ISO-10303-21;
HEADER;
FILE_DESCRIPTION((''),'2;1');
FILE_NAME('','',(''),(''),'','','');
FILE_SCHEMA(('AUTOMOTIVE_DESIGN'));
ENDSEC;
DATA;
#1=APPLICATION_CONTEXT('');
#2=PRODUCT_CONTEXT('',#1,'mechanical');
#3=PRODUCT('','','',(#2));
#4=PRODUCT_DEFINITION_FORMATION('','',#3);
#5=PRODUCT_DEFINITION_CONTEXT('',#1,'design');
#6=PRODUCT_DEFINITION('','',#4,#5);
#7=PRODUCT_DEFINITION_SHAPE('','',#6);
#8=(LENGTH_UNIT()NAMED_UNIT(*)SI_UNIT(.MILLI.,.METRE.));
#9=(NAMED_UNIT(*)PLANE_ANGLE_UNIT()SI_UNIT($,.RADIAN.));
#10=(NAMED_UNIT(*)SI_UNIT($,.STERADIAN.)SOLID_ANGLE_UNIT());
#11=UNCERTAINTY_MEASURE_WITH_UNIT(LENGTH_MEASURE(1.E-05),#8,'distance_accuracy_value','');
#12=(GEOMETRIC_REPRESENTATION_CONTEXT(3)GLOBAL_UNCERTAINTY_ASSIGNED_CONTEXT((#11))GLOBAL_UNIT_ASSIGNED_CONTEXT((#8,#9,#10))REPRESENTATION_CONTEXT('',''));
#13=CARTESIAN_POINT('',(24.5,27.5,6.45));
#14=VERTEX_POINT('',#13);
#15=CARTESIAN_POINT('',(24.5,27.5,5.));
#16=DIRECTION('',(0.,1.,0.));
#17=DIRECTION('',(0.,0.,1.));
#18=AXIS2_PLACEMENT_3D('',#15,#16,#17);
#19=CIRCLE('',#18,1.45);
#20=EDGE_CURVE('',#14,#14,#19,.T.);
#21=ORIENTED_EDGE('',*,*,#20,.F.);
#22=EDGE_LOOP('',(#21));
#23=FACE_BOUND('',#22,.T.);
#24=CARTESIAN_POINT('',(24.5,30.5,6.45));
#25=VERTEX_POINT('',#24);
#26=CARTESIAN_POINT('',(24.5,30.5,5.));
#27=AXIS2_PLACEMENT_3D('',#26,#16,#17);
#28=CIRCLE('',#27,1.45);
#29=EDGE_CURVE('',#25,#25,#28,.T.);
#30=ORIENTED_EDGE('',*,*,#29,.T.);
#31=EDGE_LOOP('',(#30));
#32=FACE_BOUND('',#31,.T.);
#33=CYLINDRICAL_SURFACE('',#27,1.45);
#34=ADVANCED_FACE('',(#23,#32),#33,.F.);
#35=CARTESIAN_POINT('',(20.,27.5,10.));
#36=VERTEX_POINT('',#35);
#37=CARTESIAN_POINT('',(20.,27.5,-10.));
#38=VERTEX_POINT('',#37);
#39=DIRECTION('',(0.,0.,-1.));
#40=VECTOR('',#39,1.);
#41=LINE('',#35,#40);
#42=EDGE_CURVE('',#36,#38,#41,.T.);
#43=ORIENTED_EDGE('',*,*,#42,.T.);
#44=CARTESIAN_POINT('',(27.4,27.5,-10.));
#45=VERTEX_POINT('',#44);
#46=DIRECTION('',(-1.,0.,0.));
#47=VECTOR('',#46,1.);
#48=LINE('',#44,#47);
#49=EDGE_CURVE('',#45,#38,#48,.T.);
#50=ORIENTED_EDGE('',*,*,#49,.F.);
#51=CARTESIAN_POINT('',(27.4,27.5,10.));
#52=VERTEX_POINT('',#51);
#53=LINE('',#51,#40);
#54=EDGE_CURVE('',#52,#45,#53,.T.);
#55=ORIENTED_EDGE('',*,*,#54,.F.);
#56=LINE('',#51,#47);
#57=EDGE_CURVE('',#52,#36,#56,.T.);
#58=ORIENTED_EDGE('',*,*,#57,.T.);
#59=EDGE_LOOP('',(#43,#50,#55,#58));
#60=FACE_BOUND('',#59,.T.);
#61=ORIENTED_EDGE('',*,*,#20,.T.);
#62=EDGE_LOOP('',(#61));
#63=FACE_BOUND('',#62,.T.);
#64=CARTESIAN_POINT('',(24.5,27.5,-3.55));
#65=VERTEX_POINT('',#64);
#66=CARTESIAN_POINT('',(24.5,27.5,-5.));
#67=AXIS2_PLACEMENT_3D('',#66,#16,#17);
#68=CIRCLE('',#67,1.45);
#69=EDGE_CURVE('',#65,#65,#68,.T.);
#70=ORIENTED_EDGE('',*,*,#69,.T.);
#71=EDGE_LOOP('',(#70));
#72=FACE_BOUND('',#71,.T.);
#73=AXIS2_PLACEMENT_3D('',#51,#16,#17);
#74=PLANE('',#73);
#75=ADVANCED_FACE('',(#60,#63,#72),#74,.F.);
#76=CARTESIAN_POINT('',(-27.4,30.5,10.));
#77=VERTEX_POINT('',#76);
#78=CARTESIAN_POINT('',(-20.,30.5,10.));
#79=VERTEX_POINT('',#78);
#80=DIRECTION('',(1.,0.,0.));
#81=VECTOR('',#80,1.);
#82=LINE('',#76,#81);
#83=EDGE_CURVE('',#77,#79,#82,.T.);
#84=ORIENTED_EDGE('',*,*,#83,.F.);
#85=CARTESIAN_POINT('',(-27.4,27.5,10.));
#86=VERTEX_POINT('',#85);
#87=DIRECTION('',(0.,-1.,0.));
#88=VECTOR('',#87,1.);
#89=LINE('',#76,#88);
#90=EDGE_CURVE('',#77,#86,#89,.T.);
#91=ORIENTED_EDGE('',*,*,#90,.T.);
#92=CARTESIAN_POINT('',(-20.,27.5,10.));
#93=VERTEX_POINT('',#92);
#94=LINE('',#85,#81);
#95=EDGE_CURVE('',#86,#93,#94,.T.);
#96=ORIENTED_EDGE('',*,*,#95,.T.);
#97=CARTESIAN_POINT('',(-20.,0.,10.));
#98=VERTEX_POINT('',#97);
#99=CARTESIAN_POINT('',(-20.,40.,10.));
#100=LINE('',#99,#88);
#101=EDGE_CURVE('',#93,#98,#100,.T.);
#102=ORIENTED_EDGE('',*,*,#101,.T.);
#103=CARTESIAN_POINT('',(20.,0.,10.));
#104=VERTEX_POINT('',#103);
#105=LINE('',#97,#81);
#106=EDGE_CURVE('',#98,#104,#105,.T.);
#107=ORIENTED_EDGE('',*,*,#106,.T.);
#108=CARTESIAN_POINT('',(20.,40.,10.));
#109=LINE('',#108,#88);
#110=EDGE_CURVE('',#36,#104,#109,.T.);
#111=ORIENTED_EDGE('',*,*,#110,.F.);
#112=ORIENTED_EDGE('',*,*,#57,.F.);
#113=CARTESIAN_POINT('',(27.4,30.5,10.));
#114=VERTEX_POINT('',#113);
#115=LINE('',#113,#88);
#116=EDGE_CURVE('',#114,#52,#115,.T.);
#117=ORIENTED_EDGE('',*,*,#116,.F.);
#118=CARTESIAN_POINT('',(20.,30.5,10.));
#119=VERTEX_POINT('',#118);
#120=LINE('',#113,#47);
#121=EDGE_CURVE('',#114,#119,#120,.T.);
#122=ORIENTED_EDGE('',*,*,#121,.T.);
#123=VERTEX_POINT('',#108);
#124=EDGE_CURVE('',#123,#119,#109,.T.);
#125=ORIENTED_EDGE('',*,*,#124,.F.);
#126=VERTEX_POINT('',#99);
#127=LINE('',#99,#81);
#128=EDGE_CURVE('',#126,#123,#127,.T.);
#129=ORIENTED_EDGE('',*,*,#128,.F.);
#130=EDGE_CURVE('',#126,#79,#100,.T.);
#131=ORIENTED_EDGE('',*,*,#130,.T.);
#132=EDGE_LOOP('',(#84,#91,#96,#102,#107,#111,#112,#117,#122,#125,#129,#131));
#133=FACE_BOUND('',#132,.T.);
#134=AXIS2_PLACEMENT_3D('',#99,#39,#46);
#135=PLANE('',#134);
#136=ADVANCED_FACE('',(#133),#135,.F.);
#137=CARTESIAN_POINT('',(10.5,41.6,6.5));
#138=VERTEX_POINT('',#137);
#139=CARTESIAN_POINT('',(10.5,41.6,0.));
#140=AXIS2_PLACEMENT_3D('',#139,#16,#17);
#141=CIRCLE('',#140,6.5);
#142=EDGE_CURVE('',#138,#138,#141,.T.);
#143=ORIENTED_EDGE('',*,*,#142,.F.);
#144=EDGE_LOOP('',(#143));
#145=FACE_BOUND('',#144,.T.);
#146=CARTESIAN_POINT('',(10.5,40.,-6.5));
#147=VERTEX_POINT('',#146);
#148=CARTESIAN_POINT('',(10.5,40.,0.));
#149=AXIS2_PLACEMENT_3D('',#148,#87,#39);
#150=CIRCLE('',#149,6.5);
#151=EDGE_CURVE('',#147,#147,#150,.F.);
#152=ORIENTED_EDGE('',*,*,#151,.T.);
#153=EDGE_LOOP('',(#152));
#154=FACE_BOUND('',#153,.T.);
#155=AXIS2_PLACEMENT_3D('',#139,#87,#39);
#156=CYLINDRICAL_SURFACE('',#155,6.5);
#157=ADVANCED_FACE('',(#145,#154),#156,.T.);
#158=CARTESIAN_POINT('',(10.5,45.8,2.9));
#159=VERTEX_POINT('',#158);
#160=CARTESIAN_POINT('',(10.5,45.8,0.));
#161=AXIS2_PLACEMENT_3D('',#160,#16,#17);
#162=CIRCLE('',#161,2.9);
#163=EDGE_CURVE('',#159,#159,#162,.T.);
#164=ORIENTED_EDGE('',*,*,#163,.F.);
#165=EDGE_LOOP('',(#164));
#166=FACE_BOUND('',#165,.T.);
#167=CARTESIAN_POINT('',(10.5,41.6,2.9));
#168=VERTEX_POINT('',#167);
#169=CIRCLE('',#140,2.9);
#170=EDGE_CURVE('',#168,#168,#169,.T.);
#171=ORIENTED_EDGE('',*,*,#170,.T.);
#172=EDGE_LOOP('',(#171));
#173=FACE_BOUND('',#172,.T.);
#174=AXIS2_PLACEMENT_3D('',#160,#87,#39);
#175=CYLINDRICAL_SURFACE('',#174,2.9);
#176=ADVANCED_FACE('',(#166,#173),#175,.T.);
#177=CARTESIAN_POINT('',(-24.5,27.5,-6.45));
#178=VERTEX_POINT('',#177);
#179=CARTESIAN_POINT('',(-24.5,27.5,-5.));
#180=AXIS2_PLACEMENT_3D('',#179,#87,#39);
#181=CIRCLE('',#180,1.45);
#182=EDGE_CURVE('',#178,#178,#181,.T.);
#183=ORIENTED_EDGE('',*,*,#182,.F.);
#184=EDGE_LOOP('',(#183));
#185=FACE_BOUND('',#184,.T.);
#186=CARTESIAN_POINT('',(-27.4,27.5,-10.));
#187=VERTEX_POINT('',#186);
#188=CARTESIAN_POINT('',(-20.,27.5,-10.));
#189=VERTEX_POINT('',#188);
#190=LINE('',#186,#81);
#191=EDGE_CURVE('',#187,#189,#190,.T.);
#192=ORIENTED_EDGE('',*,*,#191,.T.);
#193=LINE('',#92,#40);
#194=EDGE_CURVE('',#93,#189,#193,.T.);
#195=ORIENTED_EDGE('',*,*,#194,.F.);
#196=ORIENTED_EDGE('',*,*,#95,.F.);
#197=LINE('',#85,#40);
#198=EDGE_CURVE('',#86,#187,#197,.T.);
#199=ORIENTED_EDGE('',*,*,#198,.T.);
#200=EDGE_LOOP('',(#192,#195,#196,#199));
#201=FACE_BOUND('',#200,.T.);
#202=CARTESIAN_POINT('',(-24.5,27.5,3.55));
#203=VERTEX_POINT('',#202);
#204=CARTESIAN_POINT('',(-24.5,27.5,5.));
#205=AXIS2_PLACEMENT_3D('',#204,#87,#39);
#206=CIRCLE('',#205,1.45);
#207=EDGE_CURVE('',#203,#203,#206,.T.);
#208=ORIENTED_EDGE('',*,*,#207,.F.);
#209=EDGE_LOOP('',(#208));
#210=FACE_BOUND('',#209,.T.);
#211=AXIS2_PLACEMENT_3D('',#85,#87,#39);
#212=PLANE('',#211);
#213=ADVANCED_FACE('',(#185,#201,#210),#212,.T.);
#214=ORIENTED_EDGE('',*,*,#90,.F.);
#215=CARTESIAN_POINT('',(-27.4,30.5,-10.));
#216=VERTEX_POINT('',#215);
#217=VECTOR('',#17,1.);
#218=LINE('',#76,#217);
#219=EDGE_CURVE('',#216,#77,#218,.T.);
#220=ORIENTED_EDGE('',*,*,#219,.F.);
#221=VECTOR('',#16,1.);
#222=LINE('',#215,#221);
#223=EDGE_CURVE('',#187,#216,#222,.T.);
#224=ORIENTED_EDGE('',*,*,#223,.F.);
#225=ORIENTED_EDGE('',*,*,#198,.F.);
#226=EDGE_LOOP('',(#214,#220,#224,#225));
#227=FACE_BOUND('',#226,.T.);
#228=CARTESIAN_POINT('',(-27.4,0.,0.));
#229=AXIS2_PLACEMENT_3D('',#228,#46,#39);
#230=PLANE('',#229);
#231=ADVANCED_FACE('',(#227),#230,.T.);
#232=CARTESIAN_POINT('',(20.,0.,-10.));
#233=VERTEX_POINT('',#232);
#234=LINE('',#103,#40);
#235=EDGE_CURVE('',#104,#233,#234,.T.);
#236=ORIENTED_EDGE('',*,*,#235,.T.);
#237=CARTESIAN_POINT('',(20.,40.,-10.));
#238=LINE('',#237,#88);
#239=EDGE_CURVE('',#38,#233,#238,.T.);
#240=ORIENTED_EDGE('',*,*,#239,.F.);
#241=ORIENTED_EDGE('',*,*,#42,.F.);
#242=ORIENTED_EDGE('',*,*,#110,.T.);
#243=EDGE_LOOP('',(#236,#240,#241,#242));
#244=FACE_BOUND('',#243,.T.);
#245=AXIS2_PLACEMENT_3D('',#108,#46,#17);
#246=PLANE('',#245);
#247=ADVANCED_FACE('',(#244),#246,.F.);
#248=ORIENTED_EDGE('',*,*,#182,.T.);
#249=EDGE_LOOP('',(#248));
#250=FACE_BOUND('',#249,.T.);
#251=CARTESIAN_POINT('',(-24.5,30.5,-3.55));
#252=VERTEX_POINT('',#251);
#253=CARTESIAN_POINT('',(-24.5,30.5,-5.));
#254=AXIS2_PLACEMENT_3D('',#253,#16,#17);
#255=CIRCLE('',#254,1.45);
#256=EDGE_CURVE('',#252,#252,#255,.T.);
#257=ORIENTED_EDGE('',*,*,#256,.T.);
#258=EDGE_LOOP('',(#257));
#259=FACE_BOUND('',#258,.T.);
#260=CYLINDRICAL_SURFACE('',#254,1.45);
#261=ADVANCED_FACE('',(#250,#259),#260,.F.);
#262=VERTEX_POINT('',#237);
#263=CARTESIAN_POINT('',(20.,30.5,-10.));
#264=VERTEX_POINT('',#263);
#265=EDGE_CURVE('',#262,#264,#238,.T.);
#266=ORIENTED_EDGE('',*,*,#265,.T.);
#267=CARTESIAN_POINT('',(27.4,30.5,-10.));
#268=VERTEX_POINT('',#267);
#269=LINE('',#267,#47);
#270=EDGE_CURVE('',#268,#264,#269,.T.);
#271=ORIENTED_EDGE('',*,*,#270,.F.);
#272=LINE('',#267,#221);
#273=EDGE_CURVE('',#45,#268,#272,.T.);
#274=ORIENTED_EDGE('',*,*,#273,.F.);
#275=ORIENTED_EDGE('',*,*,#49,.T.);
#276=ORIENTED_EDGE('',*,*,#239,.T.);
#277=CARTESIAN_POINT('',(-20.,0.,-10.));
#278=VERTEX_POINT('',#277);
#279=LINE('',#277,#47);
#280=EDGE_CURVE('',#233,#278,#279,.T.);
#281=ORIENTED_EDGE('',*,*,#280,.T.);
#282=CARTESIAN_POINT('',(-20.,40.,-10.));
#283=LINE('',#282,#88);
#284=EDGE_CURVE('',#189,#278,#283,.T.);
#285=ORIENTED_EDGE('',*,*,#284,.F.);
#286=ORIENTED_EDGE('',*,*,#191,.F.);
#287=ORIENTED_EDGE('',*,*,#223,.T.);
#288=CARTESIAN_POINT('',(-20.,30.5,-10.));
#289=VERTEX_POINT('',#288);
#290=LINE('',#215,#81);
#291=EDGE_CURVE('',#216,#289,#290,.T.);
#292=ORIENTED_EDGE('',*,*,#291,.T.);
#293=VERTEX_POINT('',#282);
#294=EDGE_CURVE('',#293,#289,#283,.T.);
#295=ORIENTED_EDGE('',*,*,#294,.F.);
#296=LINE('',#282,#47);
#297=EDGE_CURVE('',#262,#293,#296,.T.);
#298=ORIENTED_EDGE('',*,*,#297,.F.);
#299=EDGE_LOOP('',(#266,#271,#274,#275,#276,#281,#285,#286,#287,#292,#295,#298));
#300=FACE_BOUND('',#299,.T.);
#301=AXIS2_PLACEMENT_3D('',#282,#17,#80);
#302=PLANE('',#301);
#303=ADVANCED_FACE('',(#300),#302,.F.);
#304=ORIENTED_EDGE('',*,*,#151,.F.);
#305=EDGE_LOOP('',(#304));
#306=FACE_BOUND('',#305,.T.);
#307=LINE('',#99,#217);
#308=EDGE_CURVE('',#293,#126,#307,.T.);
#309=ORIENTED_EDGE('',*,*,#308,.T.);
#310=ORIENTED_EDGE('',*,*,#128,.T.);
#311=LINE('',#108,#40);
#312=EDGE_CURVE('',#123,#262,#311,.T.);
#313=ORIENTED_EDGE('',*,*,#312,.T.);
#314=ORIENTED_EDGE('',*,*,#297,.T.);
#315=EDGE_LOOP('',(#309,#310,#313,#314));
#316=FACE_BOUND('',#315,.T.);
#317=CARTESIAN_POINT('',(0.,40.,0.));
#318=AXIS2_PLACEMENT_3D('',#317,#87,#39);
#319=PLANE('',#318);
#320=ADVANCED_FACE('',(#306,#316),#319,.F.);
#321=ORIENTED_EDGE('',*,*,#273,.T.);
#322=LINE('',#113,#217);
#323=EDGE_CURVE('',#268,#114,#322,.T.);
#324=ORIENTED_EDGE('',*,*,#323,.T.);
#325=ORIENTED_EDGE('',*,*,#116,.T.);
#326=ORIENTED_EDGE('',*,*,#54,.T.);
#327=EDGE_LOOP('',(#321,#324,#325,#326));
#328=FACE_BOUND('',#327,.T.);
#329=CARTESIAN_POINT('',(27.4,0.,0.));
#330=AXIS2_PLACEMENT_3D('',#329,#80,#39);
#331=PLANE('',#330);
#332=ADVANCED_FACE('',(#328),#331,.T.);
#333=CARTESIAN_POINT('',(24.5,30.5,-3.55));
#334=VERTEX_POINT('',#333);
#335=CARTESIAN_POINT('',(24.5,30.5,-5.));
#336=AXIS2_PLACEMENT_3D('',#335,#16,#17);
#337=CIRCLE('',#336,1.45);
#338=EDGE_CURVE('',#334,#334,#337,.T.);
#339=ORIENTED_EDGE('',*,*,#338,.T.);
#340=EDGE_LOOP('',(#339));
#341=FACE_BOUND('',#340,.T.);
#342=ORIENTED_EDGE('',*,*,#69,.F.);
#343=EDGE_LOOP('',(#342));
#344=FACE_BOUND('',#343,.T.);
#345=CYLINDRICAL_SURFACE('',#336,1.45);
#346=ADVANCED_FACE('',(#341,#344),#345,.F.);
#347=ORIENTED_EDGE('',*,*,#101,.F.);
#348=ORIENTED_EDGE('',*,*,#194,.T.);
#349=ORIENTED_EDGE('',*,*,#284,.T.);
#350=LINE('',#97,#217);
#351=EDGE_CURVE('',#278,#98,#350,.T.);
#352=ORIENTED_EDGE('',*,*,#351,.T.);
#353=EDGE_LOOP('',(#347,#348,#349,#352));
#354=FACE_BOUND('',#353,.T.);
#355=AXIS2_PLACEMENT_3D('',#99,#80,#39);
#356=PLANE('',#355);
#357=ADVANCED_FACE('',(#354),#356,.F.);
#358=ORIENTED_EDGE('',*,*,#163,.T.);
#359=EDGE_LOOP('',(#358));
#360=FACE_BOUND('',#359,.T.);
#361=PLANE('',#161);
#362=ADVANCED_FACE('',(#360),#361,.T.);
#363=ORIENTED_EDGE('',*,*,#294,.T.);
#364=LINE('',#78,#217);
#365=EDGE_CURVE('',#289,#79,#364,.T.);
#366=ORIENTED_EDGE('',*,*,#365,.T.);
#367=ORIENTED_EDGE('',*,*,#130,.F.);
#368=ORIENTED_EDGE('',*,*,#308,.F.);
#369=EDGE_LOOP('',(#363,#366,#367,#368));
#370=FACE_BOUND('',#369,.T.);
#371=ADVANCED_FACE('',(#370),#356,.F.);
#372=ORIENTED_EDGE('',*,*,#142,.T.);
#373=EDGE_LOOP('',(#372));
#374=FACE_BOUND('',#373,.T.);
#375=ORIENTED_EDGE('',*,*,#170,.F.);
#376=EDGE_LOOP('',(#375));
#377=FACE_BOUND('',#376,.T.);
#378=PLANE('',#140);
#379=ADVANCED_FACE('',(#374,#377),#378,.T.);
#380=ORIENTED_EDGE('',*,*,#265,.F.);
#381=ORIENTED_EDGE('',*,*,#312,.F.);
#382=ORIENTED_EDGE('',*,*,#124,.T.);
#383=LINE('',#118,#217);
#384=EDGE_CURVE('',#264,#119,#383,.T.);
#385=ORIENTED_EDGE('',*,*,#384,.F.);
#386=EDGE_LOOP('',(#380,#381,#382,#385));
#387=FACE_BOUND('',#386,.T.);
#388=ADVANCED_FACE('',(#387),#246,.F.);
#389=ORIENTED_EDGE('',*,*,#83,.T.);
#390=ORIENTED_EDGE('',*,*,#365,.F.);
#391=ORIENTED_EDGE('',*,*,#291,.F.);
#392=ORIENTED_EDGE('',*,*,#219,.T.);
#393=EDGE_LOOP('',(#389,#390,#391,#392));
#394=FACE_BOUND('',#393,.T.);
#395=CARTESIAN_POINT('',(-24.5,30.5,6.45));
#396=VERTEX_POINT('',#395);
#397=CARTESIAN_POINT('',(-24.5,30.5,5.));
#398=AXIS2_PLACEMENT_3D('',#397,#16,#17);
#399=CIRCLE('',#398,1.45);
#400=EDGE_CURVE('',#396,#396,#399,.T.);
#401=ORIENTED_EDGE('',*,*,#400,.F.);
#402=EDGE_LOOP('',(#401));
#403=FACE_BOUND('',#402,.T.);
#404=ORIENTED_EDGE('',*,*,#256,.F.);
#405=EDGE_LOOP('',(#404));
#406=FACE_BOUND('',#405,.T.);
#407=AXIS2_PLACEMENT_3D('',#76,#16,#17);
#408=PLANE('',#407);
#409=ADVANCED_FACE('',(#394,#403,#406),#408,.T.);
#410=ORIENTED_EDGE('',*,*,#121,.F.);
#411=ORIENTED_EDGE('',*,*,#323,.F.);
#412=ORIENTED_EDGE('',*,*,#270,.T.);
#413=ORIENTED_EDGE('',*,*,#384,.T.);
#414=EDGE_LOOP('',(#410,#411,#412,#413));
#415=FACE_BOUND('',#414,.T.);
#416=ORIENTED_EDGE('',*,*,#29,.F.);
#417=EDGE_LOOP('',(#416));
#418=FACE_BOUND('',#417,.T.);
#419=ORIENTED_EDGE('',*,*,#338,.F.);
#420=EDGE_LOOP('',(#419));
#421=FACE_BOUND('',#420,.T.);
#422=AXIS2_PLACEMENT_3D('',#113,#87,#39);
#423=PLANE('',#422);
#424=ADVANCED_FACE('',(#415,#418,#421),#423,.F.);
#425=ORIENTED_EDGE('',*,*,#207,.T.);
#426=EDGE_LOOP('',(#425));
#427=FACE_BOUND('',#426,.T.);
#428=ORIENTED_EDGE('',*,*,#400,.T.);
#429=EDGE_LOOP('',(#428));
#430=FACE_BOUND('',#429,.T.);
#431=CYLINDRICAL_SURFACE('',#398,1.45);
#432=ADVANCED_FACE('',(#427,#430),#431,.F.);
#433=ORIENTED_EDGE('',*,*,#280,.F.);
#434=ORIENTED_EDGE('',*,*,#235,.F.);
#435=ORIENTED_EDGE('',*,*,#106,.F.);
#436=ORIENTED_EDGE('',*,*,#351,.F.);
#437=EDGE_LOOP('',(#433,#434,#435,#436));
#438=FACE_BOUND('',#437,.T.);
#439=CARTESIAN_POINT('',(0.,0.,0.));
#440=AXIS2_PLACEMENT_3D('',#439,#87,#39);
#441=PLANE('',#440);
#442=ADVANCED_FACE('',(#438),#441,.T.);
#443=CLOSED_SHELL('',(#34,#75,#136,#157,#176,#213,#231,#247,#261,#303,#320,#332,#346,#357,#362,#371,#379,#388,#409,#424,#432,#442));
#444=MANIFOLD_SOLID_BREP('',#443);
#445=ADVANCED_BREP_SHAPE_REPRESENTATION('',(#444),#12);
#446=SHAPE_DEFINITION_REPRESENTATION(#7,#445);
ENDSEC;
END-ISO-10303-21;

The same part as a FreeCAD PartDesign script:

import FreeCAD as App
import Part
import Sketcher


def add_polygon(sketch, points):
    """Adds a closed chain of lines whose ends are joined by coincident constraints."""
    first, n = sketch.GeometryCount, len(points)
    for a, b in zip(points, points[1:] + points[:1]):
        sketch.addGeometry(Part.LineSegment(App.Vector(*a, 0), App.Vector(*b, 0)), False)
    for i in range(n):
        sketch.addConstraint(Sketcher.Constraint("Coincident", first + i, 2, first + (i + 1) % n, 1))

doc = App.newDocument("Part")
body = doc.addObject("PartDesign::Body", "Body")

# Sketch on XZ plane
sketch1 = body.newObject("Sketcher::SketchObject", "Sketch")
sketch1.AttachmentSupport = (doc.getObject("XZ_Plane"), [""])
sketch1.MapMode = "FlatFace"
add_polygon(sketch1, [(-20, -10), (-20, 10), (20, 10), (20, -10)])  # lines 0-3
sketch1.addConstraint(Sketcher.Constraint("Vertical", 0))
sketch1.addConstraint(Sketcher.Constraint("Horizontal", 1))
sketch1.addConstraint(Sketcher.Constraint("Vertical", 2))
sketch1.addConstraint(Sketcher.Constraint("Horizontal", 3))
sketch1.addConstraint(Sketcher.Constraint("Symmetric", 0, 2, 2, 2, -1, 1))
sketch1.addConstraint(Sketcher.Constraint("DistanceX", 1, 1, 1, 2, 40.0))
sketch1.addConstraint(Sketcher.Constraint("DistanceY", 0, 1, 0, 2, 20.0))
pad1 = body.newObject("PartDesign::Pad", "Pad")
pad1.Profile = sketch1
pad1.Length = 40
pad1.Reversed = True

# Sketch on YZ plane
sketch2 = body.newObject("Sketcher::SketchObject", "Sketch001")
sketch2.AttachmentSupport = (doc.getObject("YZ_Plane"), [""])
sketch2.MapMode = "FlatFace"
sketch2.AttachmentOffset = App.Placement(App.Vector(0, 0, 20), App.Rotation())
add_polygon(sketch2, [(30.5, 10), (27.5, 10), (27.5, -10), (30.5, -10)])  # lines 0-3
sketch2.addConstraint(Sketcher.Constraint("Horizontal", 0))
sketch2.addConstraint(Sketcher.Constraint("Vertical", 1))
sketch2.addConstraint(Sketcher.Constraint("Horizontal", 2))
sketch2.addConstraint(Sketcher.Constraint("Vertical", 3))
sketch2.addConstraint(Sketcher.Constraint("DistanceX", 0, 2, 0, 1, 3.0))
sketch2.addConstraint(Sketcher.Constraint("DistanceY", 1, 2, 1, 1, 20.0))
sketch2.addConstraint(Sketcher.Constraint("DistanceY", -1, 1, 0, 2, 10.0))
sketch2.addConstraint(Sketcher.Constraint("DistanceX", -1, 1, 0, 2, 27.5))
pad2 = body.newObject("PartDesign::Pad", "Pad001")
pad2.Profile = sketch2
pad2.Length = 7.4
doc.recompute()

mirrored = body.newObject("PartDesign::Mirrored", "Mirrored")
mirrored.Originals = [pad2]
mirrored.MirrorPlane = (doc.getObject("YZ_Plane"), [""])
body.Tip = mirrored

# Sketch on XZ plane
sketch3 = body.newObject("Sketcher::SketchObject", "Sketch002")
sketch3.AttachmentSupport = (doc.getObject("XZ_Plane"), [""])
sketch3.MapMode = "FlatFace"
sketch3.AttachmentOffset = App.Placement(App.Vector(0, 0, -40), App.Rotation())
sketch3.addGeometry(Part.Circle(App.Vector(10.5, 0, 0), App.Vector(0, 0, 1), 2.9), False)
sketch3.addConstraint(Sketcher.Constraint("PointOnObject", 0, 3, -1))
sketch3.addConstraint(Sketcher.Constraint("Diameter", 0, 5.8))
sketch3.addConstraint(Sketcher.Constraint("DistanceX", -1, 1, 0, 3, 10.5))
pad3 = body.newObject("PartDesign::Pad", "Pad002")
pad3.Profile = sketch3
pad3.Length = 5.8
pad3.Reversed = True

# Sketch on XZ plane
sketch4 = body.newObject("Sketcher::SketchObject", "Sketch003")
sketch4.AttachmentSupport = (doc.getObject("XZ_Plane"), [""])
sketch4.MapMode = "FlatFace"
sketch4.AttachmentOffset = App.Placement(App.Vector(0, 0, -40), App.Rotation())
sketch4.addGeometry(Part.Circle(App.Vector(10, 0, 0), App.Vector(0, 0, 1), 6), False)
sketch4.addConstraint(Sketcher.Constraint("PointOnObject", 0, 3, -1))
sketch4.addConstraint(Sketcher.Constraint("Diameter", 0, 13.0))
sketch4.addConstraint(Sketcher.Constraint("DistanceX", -1, 1, 0, 3, 10.5))
pad4 = body.newObject("PartDesign::Pad", "Pad003")
pad4.Profile = sketch4
pad4.Length = 1.6
pad4.Reversed = True

# Sketch on XZ plane
sketch5 = body.newObject("Sketcher::SketchObject", "Sketch004")
sketch5.AttachmentSupport = (doc.getObject("XZ_Plane"), [""])
sketch5.MapMode = "FlatFace"
sketch5.AttachmentOffset = App.Placement(App.Vector(0, 0, -30.5), App.Rotation())
sketch5.addGeometry(Part.Circle(App.Vector(-24.5, -5, 0), App.Vector(0, 0, 1), 1.4), False)
sketch5.addGeometry(Part.Circle(App.Vector(-24.5, 5, 0), App.Vector(0, 0, 1), 1.4), False)
sketch5.addGeometry(Part.Circle(App.Vector(24.5, -5, 0), App.Vector(0, 0, 1), 1.4), False)
sketch5.addGeometry(Part.Circle(App.Vector(24.5, 5, 0), App.Vector(0, 0, 1), 1.4), False)
sketch5.addConstraint(Sketcher.Constraint("Equal", 0, 1))
sketch5.addConstraint(Sketcher.Constraint("Equal", 1, 2))
sketch5.addConstraint(Sketcher.Constraint("Equal", 2, 3))
sketch5.addConstraint(Sketcher.Constraint("Symmetric", 1, 3, 2, 3, -1, 1))
sketch5.addConstraint(Sketcher.Constraint("Symmetric", 0, 3, 3, 3, -1, 1))
sketch5.addConstraint(Sketcher.Constraint("Symmetric", 0, 3, 2, 3, -2))
sketch5.addConstraint(Sketcher.Constraint("Diameter", 0, 2.9))
sketch5.addConstraint(Sketcher.Constraint("DistanceY", 0, 3, -1, 1, 5.0))
sketch5.addConstraint(Sketcher.Constraint("DistanceX", 0, 3, 2, 3, 49.0))
doc.recompute()
hole = body.newObject("PartDesign::Hole", "Hole")
hole.Profile = sketch5
hole.ThreadType = "None"
hole.Diameter = 2.9
hole.DepthType = "Dimension"
hole.Depth = 8.999
hole.DrillPoint = "Angled"
hole.DrillPointAngle = 118
hole.Reversed = True

doc.recompute()
